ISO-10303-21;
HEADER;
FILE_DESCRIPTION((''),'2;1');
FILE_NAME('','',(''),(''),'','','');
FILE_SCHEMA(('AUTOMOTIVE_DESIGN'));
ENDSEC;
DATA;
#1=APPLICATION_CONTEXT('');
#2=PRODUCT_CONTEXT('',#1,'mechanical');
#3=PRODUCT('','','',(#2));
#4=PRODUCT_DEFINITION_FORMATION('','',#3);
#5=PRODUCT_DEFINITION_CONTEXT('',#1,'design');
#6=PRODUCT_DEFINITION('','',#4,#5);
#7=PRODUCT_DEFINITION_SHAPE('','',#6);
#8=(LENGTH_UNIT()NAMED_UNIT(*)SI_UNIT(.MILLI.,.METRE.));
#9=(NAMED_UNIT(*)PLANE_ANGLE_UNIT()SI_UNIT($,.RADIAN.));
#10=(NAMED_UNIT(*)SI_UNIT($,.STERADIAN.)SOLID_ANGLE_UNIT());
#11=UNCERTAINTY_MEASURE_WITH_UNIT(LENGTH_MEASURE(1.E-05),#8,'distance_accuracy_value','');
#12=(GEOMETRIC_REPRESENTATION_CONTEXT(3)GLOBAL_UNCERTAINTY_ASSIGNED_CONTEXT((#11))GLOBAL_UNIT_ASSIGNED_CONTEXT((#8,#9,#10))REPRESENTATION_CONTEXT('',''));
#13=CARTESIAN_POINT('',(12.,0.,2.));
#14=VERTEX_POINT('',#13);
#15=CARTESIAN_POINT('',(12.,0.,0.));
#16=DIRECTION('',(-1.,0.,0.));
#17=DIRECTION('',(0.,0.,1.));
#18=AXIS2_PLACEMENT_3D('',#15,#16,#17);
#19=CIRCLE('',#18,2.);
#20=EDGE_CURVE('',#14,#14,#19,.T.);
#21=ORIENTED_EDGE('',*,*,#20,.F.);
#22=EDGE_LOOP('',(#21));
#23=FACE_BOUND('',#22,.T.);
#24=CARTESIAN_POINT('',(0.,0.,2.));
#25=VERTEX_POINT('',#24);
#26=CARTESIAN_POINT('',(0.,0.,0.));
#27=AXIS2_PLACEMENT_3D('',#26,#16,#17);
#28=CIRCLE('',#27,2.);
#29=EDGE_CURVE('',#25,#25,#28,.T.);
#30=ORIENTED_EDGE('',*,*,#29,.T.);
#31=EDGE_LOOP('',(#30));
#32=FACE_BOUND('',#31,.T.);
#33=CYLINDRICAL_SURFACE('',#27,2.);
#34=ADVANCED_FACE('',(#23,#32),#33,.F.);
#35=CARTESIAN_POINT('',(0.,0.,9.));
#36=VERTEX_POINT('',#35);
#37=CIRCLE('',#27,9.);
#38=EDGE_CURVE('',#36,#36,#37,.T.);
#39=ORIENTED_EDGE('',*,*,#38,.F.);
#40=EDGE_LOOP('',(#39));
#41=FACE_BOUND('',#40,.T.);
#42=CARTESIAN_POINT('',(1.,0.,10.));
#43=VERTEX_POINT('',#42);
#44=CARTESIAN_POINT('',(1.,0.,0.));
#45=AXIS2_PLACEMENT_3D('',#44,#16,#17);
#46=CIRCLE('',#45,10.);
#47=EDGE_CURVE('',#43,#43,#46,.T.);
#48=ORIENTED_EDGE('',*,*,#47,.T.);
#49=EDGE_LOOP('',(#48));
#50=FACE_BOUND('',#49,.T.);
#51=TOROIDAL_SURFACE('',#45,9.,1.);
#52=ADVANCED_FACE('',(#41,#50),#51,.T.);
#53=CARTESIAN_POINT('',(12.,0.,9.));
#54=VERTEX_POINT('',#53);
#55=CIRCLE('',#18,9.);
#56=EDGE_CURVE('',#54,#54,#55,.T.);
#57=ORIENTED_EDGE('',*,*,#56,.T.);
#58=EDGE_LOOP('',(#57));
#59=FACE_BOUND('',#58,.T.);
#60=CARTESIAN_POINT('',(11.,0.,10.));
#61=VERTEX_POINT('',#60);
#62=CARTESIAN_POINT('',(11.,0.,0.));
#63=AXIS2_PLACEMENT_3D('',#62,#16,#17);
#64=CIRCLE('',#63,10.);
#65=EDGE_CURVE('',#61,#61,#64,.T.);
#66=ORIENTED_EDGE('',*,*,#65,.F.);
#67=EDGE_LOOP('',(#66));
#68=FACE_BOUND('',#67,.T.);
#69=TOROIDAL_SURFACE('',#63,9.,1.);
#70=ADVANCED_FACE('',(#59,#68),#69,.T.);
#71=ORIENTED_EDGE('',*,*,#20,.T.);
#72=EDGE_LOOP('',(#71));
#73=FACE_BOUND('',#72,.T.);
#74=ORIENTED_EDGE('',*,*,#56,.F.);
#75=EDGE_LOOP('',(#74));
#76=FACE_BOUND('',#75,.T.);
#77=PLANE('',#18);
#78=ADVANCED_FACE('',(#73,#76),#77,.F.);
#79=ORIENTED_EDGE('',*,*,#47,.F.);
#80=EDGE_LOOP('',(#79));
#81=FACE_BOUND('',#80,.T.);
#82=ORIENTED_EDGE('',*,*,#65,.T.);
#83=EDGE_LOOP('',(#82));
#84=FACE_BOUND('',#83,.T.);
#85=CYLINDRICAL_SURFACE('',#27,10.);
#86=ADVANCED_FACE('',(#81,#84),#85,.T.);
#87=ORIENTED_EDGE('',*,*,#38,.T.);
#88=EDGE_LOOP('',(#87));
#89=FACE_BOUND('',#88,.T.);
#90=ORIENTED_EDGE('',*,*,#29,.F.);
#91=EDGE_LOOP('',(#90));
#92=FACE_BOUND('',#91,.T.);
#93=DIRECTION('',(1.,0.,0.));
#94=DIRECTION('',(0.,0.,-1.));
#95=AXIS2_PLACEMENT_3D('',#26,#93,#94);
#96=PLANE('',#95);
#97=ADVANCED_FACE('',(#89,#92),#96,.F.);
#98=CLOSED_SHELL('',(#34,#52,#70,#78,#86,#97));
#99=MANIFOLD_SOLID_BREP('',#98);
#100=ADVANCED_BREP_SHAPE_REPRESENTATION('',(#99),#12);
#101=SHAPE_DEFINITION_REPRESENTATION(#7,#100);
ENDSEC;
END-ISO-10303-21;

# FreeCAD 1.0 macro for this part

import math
import FreeCAD as App
import Part
import Sketcher
from FreeCAD import Vector
Q = App.Units.Quantity

doc = App.newDocument("Part")
body = doc.addObject("PartDesign::Body", "Body")

sketch1 = doc.addObject("Sketcher::SketchObject", "Sketch")
body.addObject(sketch1)
sketch1.AttachmentSupport = (doc.XY_Plane, [""])
sketch1.MapMode = "FlatFace"
sketch1.addGeometry([
    Part.LineSegment(Vector(0, 9, 0), Vector(0, 2, 0)),
    Part.LineSegment(Vector(0, 2, 0), Vector(12, 2, 0)),
    Part.LineSegment(Vector(12, 2, 0), Vector(12, 9, 0)),
    Part.ArcOfCircle(Part.Circle(Vector(11, 9, 0), Vector(0, 0, 1), 1), math.radians(0), math.radians(90)),
    Part.LineSegment(Vector(11, 10, 0), Vector(1, 10, 0)),
    Part.ArcOfCircle(Part.Circle(Vector(1, 9, 0), Vector(0, 0, 1), 1), math.radians(90), math.radians(180)),
], False)
sketch1.addConstraint([
    Sketcher.Constraint("Coincident", 0, 2, 1, 1),
    Sketcher.Constraint("Coincident", 1, 2, 2, 1),
    Sketcher.Constraint("Tangent", 2, 2, 3, 1),
    Sketcher.Constraint("Tangent", 3, 2, 4, 1),
    Sketcher.Constraint("Tangent", 4, 2, 5, 1),
    Sketcher.Constraint("Tangent", 5, 2, 0, 1),
    Sketcher.Constraint("Vertical", 0),
    Sketcher.Constraint("Horizontal", 1),
    Sketcher.Constraint("Vertical", 2),
    Sketcher.Constraint("Horizontal", 4),
    Sketcher.Constraint("Equal", 3, 5),
    Sketcher.Constraint("PointOnObject", 0, 2, -2),
    Sketcher.Constraint("Radius", 3, Q("1 mm")),
    Sketcher.Constraint("DistanceX", 1, 1, 1, 2, Q("12 mm")),
    Sketcher.Constraint("DistanceY", 0, 2, 0, 1, Q("7 mm")),
    Sketcher.Constraint("DistanceY", -1, 1, 3, 3, Q("9 mm")),
])
revolution = doc.addObject("PartDesign::Revolution", "Revolution")
body.addObject(revolution)
revolution.Profile = sketch1
revolution.ReferenceAxis = (sketch1, ["H_Axis"])
revolution.Angle = 360

doc.recompute()
